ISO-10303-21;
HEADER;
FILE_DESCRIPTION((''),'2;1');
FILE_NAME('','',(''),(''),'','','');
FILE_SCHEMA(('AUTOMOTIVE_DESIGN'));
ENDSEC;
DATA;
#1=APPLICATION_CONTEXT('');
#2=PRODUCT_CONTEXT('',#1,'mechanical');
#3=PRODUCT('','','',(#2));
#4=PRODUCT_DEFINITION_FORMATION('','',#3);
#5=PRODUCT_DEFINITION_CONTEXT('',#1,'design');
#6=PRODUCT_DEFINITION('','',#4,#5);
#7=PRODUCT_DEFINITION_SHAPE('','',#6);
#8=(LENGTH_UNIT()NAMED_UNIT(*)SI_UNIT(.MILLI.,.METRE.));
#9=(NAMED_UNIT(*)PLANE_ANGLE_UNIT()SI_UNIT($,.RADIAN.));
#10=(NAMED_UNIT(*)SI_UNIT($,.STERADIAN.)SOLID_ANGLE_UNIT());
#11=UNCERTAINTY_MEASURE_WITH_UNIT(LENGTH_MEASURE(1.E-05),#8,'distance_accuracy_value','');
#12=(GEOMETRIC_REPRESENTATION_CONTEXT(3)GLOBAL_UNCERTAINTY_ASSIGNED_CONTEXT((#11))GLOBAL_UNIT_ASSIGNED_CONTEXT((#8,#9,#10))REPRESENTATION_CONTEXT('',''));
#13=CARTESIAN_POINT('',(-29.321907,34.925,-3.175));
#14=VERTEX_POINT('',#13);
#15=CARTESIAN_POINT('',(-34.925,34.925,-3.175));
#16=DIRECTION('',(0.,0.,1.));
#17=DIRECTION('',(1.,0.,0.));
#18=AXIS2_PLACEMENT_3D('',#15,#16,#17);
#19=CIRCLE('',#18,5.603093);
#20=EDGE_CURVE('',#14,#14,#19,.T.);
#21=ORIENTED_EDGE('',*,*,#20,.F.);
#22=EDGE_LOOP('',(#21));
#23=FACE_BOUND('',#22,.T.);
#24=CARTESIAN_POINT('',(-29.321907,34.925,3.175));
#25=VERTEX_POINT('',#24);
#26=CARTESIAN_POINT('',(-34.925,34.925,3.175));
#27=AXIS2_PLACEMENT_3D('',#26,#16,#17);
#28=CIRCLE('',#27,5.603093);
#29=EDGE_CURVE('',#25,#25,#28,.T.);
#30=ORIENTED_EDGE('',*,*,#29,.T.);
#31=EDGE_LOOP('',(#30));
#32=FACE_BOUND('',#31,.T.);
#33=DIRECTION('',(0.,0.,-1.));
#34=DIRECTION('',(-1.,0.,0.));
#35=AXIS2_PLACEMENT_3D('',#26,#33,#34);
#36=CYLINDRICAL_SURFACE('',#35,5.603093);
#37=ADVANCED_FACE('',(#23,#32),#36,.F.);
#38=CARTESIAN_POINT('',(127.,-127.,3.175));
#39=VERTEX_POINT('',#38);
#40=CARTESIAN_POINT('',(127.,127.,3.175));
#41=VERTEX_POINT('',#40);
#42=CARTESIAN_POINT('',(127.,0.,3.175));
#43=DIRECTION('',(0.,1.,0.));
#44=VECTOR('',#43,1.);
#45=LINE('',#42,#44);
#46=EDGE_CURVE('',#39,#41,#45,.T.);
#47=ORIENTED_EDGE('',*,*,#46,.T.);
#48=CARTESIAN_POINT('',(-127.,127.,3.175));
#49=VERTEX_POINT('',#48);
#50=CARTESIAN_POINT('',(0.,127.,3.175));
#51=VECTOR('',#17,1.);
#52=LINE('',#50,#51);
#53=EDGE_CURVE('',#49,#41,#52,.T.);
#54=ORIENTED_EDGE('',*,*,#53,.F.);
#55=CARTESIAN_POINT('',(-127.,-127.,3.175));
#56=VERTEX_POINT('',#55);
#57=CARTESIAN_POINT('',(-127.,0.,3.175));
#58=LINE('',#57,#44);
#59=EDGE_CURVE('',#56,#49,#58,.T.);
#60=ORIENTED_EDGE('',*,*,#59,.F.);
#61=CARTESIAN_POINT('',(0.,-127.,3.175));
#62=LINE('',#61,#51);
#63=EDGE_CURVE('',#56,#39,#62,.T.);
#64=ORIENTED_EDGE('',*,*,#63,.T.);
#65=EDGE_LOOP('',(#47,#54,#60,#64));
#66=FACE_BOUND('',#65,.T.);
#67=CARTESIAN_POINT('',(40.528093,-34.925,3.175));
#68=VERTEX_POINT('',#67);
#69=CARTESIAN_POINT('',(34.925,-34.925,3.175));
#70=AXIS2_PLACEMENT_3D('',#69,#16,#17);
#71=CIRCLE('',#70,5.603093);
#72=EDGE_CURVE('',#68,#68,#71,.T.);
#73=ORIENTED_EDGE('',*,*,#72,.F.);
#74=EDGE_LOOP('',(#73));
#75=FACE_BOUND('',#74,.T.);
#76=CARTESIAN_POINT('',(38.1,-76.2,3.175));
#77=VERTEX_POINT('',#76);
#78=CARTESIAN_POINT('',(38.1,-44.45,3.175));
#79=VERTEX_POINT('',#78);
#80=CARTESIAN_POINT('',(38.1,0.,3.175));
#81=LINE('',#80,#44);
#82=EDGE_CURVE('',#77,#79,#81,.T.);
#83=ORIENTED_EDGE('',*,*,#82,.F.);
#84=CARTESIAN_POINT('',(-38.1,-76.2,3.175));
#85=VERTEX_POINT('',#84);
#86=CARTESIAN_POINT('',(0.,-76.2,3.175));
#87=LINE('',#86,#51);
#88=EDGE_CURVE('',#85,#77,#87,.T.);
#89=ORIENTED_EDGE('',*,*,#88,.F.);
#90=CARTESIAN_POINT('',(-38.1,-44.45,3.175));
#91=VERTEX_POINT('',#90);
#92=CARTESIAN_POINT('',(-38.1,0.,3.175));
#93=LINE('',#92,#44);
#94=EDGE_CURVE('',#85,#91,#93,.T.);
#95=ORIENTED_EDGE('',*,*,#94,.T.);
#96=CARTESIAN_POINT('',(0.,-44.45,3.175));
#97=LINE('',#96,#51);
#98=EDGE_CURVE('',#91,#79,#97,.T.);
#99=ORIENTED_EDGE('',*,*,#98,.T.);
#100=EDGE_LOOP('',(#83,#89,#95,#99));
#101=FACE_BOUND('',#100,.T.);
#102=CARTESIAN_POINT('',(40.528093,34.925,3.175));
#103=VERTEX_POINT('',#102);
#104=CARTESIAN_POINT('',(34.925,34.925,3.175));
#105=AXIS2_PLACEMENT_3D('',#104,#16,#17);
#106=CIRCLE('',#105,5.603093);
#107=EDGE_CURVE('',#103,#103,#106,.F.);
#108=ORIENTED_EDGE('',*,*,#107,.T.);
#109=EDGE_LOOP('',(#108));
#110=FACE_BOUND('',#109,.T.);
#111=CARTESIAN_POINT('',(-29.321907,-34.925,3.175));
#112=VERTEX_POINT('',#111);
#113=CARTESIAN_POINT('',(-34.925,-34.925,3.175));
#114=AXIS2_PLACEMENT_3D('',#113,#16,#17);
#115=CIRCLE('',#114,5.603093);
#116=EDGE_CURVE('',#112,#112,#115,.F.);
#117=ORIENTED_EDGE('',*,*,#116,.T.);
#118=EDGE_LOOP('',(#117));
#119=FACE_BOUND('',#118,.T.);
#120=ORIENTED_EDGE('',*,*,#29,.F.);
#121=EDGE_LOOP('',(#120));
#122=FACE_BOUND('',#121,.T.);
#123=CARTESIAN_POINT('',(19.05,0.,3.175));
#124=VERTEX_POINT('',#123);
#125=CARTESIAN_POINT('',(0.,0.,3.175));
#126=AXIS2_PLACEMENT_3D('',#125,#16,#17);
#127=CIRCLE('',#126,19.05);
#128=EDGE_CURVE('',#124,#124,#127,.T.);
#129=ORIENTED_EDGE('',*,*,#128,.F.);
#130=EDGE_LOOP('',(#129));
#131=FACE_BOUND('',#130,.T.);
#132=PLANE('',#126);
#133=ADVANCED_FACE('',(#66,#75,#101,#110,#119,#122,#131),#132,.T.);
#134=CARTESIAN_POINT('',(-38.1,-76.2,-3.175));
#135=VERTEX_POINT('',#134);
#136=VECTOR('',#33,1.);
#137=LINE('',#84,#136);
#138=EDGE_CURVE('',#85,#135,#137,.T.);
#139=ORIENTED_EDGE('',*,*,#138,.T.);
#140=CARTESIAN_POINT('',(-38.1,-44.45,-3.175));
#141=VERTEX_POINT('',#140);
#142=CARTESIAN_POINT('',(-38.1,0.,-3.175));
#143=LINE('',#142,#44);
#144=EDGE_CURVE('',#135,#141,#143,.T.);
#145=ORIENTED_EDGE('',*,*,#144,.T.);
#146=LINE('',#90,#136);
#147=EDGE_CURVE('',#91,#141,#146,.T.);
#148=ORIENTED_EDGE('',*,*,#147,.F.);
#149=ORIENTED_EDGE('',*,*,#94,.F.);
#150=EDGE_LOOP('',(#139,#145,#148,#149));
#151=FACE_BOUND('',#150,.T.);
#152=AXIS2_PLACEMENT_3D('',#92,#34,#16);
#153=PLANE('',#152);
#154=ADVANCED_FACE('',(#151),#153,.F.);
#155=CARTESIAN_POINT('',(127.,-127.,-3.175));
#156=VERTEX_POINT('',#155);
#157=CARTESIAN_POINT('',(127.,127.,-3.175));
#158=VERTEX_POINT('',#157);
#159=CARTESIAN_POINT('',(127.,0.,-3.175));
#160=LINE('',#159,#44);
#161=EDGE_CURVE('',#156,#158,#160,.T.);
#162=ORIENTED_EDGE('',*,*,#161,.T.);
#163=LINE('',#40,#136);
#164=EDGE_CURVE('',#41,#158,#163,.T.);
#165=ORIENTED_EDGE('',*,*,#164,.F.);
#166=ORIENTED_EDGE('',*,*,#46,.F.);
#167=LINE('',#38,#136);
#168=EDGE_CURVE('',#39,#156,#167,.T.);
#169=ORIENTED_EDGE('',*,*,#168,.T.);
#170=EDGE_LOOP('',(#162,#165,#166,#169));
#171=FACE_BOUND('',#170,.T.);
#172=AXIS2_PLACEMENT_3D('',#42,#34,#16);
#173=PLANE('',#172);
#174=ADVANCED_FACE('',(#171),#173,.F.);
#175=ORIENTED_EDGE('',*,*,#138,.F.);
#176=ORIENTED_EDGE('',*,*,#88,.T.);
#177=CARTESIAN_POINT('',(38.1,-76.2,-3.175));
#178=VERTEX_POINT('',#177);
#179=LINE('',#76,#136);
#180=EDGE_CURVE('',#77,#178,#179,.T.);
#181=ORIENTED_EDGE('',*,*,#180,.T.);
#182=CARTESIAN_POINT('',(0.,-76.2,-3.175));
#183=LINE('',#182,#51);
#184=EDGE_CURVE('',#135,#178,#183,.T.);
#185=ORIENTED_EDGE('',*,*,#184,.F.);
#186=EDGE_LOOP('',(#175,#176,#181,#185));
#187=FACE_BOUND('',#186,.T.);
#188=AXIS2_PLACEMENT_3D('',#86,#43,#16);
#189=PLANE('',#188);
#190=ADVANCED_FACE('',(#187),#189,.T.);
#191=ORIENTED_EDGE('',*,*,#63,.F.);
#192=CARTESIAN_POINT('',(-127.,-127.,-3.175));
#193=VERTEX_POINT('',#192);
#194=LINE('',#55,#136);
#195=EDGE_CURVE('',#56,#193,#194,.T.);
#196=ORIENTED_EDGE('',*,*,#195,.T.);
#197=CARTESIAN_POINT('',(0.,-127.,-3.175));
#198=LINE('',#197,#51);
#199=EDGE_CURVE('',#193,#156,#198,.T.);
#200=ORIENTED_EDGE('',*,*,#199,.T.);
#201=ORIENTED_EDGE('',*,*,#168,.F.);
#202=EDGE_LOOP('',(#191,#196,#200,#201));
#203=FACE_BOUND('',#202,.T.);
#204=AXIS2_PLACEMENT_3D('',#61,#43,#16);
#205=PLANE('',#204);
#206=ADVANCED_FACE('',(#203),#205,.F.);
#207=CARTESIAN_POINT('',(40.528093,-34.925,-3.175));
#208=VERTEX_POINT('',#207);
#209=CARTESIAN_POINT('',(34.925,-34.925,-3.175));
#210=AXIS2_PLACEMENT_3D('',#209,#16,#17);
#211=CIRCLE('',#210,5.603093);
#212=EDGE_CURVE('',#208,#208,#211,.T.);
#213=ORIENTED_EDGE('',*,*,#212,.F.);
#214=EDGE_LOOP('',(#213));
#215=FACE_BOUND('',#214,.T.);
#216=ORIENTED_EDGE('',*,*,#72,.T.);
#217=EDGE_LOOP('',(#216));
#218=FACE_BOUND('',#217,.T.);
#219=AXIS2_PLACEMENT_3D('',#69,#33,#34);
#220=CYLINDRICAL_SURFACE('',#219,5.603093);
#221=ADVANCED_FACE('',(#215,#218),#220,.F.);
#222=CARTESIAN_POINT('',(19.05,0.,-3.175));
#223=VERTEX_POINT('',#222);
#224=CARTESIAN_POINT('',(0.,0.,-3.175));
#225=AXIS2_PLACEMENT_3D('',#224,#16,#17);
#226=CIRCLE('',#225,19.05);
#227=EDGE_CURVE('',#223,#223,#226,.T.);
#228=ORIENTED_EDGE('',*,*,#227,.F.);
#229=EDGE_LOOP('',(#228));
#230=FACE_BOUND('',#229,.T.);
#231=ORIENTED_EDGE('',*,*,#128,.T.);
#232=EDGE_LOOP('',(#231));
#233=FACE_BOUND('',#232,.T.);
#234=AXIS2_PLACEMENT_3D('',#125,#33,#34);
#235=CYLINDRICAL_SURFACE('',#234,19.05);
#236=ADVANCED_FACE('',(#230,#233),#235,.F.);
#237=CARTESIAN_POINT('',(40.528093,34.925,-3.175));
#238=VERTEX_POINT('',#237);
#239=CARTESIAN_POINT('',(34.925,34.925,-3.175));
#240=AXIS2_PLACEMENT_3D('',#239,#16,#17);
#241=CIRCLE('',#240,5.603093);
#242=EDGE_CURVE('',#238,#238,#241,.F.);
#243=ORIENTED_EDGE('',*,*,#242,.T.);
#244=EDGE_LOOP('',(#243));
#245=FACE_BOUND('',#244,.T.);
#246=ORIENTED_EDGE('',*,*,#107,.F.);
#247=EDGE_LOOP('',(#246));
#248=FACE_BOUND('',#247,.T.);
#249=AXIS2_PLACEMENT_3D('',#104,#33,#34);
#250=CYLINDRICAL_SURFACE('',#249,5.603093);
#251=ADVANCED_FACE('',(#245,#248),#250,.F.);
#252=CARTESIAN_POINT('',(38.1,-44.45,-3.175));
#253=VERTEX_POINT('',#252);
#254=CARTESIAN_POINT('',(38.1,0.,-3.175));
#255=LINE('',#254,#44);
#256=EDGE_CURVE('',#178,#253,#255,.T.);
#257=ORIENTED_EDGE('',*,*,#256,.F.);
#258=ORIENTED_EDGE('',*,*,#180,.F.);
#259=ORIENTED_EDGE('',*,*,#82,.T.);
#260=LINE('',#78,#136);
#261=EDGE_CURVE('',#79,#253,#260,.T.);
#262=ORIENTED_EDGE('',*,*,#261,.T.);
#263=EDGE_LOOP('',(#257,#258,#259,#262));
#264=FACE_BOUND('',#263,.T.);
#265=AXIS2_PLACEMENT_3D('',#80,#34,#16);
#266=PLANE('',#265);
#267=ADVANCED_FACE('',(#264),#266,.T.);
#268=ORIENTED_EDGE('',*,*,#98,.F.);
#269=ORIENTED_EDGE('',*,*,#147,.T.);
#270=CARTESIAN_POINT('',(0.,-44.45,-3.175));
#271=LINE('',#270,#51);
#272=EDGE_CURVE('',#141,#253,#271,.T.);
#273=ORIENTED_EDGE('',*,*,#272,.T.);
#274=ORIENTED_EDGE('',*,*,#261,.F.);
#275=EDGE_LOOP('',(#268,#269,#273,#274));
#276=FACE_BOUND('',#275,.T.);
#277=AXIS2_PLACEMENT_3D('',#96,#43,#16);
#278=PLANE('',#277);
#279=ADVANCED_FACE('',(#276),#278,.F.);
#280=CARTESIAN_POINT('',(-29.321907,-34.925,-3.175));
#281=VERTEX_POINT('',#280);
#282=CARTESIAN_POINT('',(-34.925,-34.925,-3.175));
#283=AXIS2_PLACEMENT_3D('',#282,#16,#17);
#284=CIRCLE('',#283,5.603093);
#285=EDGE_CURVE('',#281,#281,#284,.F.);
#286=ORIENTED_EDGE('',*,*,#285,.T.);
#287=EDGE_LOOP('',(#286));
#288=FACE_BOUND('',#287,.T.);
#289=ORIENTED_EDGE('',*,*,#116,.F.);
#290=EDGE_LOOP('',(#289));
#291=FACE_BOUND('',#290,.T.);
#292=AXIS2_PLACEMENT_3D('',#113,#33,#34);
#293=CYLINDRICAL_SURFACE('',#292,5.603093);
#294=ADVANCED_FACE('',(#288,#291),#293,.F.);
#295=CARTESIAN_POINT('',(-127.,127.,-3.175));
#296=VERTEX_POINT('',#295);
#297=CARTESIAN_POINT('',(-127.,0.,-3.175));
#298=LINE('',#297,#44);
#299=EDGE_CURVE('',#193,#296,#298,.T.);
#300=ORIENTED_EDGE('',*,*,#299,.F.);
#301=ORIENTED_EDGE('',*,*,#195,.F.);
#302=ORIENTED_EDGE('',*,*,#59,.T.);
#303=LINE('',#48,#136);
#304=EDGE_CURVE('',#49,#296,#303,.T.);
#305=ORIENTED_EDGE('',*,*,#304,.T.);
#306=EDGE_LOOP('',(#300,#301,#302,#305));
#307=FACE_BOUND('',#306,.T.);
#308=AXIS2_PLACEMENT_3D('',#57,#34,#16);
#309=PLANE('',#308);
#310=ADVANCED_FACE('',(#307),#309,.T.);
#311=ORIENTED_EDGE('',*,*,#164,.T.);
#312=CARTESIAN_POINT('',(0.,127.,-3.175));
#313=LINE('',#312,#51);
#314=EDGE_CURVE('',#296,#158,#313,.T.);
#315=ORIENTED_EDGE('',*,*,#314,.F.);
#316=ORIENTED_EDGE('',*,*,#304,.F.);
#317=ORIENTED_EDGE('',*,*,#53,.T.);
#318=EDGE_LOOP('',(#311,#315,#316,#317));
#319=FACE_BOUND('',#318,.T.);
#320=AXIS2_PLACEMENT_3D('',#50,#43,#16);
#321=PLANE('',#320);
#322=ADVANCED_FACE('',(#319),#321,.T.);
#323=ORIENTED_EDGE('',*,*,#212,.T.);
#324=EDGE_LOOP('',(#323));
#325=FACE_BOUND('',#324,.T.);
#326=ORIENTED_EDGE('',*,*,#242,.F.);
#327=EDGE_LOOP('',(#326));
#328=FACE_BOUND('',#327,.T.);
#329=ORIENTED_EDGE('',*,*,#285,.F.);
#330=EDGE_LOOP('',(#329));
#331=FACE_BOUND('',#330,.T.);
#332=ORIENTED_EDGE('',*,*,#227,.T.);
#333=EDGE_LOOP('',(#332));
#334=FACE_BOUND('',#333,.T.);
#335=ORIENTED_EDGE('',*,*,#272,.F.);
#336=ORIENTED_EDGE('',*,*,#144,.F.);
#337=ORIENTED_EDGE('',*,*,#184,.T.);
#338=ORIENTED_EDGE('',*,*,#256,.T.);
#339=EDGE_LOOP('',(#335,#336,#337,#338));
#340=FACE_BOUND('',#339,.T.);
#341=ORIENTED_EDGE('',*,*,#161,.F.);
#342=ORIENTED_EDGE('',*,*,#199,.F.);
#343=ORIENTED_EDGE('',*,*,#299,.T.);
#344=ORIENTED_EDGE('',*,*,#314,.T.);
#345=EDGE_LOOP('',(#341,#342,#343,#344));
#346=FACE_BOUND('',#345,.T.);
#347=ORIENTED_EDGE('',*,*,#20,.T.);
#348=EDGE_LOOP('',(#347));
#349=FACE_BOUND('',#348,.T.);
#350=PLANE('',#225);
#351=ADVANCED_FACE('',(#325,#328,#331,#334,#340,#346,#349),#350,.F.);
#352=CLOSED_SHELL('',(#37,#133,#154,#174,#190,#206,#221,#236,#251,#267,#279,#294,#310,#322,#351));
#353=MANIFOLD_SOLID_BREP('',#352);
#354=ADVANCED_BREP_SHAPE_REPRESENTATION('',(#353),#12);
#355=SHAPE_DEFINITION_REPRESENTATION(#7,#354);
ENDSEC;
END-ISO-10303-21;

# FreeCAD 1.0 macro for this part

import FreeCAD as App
import Part
import Sketcher

V = App.Vector
Q = App.Units.Quantity

doc = App.newDocument("Part")
body = doc.addObject("PartDesign::Body", "Body")

sketch1 = body.newObject("Sketcher::SketchObject", "Sketch")
sketch1.AttachmentSupport = (doc.getObject("XY_Plane"), [""])
sketch1.MapMode = "FlatFace"
sketch1.addGeometry([
    Part.LineSegment(V(-127, 127, 0), V(-127, -127, 0)),
    Part.LineSegment(V(-127, -127, 0), V(127, -127, 0)),
    Part.LineSegment(V(127, -127, 0), V(127, 127, 0)),
    Part.LineSegment(V(127, 127, 0), V(-127, 127, 0)),
    Part.Circle(V(-35, -35, 0), V(0, 0, 1), 6),
    Part.LineSegment(V(38, -76, 0), V(-38, -76, 0)),
    Part.LineSegment(V(-38, -76, 0), V(-38, -44, 0)),
    Part.LineSegment(V(-38, -44, 0), V(38, -44, 0)),
    Part.LineSegment(V(38, -44, 0), V(38, -76, 0)),
    Part.Circle(V(35, -35, 0), V(0, 0, 1), 6),
    Part.Circle(V(-35, 35, 0), V(0, 0, 1), 6),
    Part.Circle(V(0, 0, 0), V(0, 0, 1), 19),
    Part.Circle(V(35, 35, 0), V(0, 0, 1), 6),
], False)
sketch1.addConstraint([
    Sketcher.Constraint("Coincident", 0, 2, 1, 1),
    Sketcher.Constraint("Coincident", 1, 2, 2, 1),
    Sketcher.Constraint("Coincident", 2, 2, 3, 1),
    Sketcher.Constraint("Coincident", 3, 2, 0, 1),
    Sketcher.Constraint("Coincident", 5, 2, 6, 1),
    Sketcher.Constraint("Coincident", 6, 2, 7, 1),
    Sketcher.Constraint("Coincident", 7, 2, 8, 1),
    Sketcher.Constraint("Coincident", 8, 2, 5, 1),
    Sketcher.Constraint("Vertical", 0),
    Sketcher.Constraint("Horizontal", 1),
    Sketcher.Constraint("Vertical", 2),
    Sketcher.Constraint("Horizontal", 3),
    Sketcher.Constraint("Horizontal", 5),
    Sketcher.Constraint("Vertical", 6),
    Sketcher.Constraint("Horizontal", 7),
    Sketcher.Constraint("Vertical", 8),
    Sketcher.Constraint("Coincident", 11, 3, -1, 1),
    Sketcher.Constraint("Equal", 4, 9),
    Sketcher.Constraint("Equal", 9, 10),
    Sketcher.Constraint("Equal", 10, 12),
    Sketcher.Constraint("Symmetric", 9, 3, 10, 3, -1, 1),
    Sketcher.Constraint("Symmetric", 4, 3, 12, 3, -1, 1),
    Sketcher.Constraint("Symmetric", 0, 2, 2, 2, -1, 1),
    Sketcher.Constraint("Symmetric", 4, 3, 9, 3, -2),
    Sketcher.Constraint("Equal", 3, 0),
    Sketcher.Constraint("Diameter", 11, Q("1.5 in")),
    Sketcher.Constraint("DistanceX", 1, 1, 1, 2, Q("10 in")),
    Sketcher.Constraint("DistanceX", 5, 2, 5, 1, Q("3 in")),
    Sketcher.Constraint("DistanceY", 5, 2, -1, 1, Q("3 in")),
    Sketcher.Constraint("DistanceY", 6, 1, 6, 2, Q("1.25 in")),
    Sketcher.Constraint("DistanceX", 5, 2, -1, 1, Q("1.5 in")),
    Sketcher.Constraint("DistanceX", 4, 3, 9, 3, Q("2.75 in")),
    Sketcher.Constraint("DistanceY", 4, 3, 10, 3, Q("2.75 in")),
    Sketcher.Constraint("Diameter", 4, Q("11.206187 mm")),
])
pad1 = body.newObject("PartDesign::Pad", "Pad")
pad1.Profile = sketch1
pad1.Length = Q("0.25 in")
pad1.Midplane = True

doc.recompute()
